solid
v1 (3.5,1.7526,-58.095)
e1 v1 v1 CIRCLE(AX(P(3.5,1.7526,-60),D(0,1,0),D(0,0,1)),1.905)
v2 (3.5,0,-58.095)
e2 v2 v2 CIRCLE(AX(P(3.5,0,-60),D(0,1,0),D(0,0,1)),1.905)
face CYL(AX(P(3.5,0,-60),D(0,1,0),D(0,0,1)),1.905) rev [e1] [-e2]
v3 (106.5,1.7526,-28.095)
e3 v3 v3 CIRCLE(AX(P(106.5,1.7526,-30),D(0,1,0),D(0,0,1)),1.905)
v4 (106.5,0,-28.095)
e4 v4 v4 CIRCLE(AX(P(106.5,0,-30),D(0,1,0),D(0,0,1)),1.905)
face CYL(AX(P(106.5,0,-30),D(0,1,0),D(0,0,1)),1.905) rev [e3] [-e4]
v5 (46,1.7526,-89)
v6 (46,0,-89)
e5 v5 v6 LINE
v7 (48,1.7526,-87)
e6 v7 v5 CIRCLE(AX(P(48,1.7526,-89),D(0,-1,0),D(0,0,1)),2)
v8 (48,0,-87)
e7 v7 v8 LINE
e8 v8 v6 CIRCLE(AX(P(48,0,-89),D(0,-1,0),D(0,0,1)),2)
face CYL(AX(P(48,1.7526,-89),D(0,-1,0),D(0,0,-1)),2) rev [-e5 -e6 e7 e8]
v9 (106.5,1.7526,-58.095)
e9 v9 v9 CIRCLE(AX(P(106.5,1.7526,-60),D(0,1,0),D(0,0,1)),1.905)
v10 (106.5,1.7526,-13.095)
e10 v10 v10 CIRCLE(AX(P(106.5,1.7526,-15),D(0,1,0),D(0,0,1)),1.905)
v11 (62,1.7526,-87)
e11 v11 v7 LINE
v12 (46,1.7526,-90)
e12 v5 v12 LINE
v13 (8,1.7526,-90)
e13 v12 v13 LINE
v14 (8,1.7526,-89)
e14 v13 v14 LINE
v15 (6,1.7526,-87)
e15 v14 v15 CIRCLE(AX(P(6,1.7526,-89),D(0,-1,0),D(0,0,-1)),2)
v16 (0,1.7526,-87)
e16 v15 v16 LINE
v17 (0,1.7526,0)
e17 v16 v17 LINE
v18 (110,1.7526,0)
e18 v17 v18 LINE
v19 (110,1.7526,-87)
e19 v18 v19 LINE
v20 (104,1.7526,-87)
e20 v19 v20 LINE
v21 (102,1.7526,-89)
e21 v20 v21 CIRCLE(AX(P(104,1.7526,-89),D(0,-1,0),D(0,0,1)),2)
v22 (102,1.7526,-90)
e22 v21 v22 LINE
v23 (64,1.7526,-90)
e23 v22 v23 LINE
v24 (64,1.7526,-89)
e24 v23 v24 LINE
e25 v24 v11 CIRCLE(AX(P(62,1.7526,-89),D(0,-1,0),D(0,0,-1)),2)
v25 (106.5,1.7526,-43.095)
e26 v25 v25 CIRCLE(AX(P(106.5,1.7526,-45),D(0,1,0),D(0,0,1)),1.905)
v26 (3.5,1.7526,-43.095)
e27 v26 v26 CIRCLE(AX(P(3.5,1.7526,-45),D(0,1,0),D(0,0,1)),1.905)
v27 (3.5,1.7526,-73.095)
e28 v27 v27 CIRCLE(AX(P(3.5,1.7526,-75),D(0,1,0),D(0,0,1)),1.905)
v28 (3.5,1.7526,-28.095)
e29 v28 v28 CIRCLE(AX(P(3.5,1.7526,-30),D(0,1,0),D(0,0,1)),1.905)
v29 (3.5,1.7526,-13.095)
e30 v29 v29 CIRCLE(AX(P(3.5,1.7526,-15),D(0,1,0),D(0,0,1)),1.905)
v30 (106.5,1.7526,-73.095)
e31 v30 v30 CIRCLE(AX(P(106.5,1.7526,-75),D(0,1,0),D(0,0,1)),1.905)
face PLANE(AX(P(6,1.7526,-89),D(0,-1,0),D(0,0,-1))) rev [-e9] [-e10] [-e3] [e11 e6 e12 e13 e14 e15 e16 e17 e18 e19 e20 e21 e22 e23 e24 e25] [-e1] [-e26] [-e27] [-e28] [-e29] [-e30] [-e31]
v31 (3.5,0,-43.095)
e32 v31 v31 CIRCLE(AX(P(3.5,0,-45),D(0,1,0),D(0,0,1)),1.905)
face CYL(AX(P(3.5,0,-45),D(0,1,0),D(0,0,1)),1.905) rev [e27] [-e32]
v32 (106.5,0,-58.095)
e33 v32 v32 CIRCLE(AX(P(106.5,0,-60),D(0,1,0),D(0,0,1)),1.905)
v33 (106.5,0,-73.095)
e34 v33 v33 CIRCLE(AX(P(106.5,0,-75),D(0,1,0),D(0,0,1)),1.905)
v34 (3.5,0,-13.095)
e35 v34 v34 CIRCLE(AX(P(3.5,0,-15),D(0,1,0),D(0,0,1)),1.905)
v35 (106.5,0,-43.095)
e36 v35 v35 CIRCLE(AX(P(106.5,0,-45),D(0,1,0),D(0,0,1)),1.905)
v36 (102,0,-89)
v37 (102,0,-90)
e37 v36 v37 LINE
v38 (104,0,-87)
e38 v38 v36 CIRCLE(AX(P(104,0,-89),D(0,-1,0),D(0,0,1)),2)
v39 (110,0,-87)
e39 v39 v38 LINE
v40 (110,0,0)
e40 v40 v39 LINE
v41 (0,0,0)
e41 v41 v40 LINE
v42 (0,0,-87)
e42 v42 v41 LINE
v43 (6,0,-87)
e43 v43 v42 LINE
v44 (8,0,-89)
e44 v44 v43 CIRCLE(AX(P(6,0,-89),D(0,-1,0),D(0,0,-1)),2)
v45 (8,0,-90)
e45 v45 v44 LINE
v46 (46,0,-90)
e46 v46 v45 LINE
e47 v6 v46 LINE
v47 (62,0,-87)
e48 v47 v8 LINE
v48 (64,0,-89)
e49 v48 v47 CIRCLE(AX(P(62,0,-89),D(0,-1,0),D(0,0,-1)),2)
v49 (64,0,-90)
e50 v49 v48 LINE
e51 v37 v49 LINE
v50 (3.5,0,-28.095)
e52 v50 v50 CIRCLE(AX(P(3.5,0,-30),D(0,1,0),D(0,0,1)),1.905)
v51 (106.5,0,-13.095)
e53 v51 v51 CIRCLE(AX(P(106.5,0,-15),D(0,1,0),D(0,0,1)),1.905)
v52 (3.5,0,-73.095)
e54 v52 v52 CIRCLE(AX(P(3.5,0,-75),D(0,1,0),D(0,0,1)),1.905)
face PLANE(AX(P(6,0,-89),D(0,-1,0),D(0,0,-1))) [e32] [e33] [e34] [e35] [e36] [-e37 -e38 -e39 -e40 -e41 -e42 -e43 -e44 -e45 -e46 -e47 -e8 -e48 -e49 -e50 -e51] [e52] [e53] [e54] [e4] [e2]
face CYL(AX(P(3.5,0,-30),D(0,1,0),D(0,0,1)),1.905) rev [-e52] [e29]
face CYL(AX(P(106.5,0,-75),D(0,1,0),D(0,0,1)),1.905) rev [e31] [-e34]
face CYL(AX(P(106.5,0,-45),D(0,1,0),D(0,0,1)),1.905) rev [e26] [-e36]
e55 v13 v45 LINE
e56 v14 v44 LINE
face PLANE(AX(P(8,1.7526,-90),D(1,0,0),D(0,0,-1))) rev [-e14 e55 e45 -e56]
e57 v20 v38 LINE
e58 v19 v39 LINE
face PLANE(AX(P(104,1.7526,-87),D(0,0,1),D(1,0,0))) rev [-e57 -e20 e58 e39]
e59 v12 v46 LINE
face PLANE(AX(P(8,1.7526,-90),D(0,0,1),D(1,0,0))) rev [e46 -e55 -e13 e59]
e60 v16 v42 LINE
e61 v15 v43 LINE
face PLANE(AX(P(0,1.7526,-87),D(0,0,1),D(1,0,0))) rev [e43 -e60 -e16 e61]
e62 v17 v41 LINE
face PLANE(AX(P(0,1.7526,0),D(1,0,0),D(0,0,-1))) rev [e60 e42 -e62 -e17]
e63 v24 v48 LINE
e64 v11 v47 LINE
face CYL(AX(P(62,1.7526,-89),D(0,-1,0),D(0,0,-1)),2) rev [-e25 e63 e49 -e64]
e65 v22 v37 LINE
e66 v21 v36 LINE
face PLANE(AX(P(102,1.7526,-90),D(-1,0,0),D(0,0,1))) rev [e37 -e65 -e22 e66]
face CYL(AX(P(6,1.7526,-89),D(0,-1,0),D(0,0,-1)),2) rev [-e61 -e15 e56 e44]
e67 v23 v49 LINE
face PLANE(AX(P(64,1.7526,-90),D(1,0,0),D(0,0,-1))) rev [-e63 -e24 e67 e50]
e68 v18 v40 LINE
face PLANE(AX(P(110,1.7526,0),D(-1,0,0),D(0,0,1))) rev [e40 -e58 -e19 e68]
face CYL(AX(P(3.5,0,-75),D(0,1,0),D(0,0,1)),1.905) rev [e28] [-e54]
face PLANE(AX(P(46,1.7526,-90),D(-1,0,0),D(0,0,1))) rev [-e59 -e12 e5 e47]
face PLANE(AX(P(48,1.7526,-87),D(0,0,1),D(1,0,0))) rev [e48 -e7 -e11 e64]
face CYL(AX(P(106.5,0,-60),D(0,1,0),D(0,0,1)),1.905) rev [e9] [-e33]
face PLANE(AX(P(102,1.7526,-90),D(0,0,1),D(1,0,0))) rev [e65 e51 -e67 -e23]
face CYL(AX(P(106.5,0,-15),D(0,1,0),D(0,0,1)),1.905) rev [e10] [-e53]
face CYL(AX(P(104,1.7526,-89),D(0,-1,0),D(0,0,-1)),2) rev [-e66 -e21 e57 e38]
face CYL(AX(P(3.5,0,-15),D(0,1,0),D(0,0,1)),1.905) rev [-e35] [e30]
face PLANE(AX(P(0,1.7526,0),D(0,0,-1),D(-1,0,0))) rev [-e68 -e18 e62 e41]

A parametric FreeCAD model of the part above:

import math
import FreeCAD as App
import Part
import Sketcher

doc = App.newDocument("Part")
body = doc.addObject("PartDesign::Body", "Body")

# Sketch on XZ plane
sketch1 = body.newObject("Sketcher::SketchObject", "Sketch")
sketch1.AttachmentSupport = (doc.getObject("XZ_Plane"), [""])
sketch1.MapMode = "FlatFace"
sketch1.addGeometry([
    Part.LineSegment(App.Vector(0, 0, 0), App.Vector(110, 0, 0)),  # 0
    Part.LineSegment(App.Vector(110, 0, 0), App.Vector(110, -87, 0)),  # 1
    Part.LineSegment(App.Vector(110, -87, 0), App.Vector(104, -87, 0)),  # 2
    Part.ArcOfCircle(Part.Circle(App.Vector(104, -89, 0), App.Vector(0, 0, 1), 2), math.radians(90), math.radians(180)),  # 3
    Part.LineSegment(App.Vector(102, -89, 0), App.Vector(102, -90, 0)),  # 4
    Part.LineSegment(App.Vector(102, -90, 0), App.Vector(64, -90, 0)),  # 5
    Part.LineSegment(App.Vector(64, -90, 0), App.Vector(64, -89, 0)),  # 6
    Part.ArcOfCircle(Part.Circle(App.Vector(62, -89, 0), App.Vector(0, 0, 1), 2), math.radians(0), math.radians(90)),  # 7
    Part.LineSegment(App.Vector(62, -87, 0), App.Vector(48, -87, 0)),  # 8
    Part.ArcOfCircle(Part.Circle(App.Vector(48, -89, 0), App.Vector(0, 0, 1), 2), math.radians(90), math.radians(180)),  # 9
    Part.LineSegment(App.Vector(46, -89, 0), App.Vector(46, -90, 0)),  # 10
    Part.LineSegment(App.Vector(46, -90, 0), App.Vector(8, -90, 0)),  # 11
    Part.LineSegment(App.Vector(8, -90, 0), App.Vector(8, -89, 0)),  # 12
    Part.ArcOfCircle(Part.Circle(App.Vector(6, -89, 0), App.Vector(0, 0, 1), 2), math.radians(0), math.radians(90)),  # 13
    Part.LineSegment(App.Vector(6, -87, 0), App.Vector(0, -87, 0)),  # 14
    Part.LineSegment(App.Vector(0, -87, 0), App.Vector(0, 0, 0)),  # 15
], False)
sketch1.addConstraint([
    Sketcher.Constraint("Coincident", 0, 2, 1, 1),
    Sketcher.Constraint("Coincident", 1, 2, 2, 1),
    Sketcher.Constraint("Tangent", 2, 2, 3, 1),
    Sketcher.Constraint("Tangent", 3, 2, 4, 1),
    Sketcher.Constraint("Coincident", 4, 2, 5, 1),
    Sketcher.Constraint("Coincident", 5, 2, 6, 1),
    Sketcher.Constraint("Tangent", 6, 2, 7, 1),
    Sketcher.Constraint("Tangent", 7, 2, 8, 1),
    Sketcher.Constraint("Tangent", 8, 2, 9, 1),
    Sketcher.Constraint("Tangent", 9, 2, 10, 1),
    Sketcher.Constraint("Coincident", 10, 2, 11, 1),
    Sketcher.Constraint("Coincident", 11, 2, 12, 1),
    Sketcher.Constraint("Tangent", 12, 2, 13, 1),
    Sketcher.Constraint("Tangent", 13, 2, 14, 1),
    Sketcher.Constraint("Coincident", 14, 2, 15, 1),
    Sketcher.Constraint("Coincident", 15, 2, 0, 1),
    Sketcher.Constraint("Horizontal", 0),
    Sketcher.Constraint("Vertical", 1),
    Sketcher.Constraint("Horizontal", 2),
    Sketcher.Constraint("Vertical", 4),
    Sketcher.Constraint("Horizontal", 5),
    Sketcher.Constraint("Vertical", 6),
    Sketcher.Constraint("Horizontal", 8),
    Sketcher.Constraint("Vertical", 10),
    Sketcher.Constraint("Horizontal", 11),
    Sketcher.Constraint("Vertical", 12),
    Sketcher.Constraint("Horizontal", 14),
    Sketcher.Constraint("Vertical", 15),
    Sketcher.Constraint("Coincident", 15, 2, -1, 1),
    Sketcher.Constraint("Equal", 3, 7),
    Sketcher.Constraint("Equal", 7, 9),
    Sketcher.Constraint("Equal", 9, 13),
    Sketcher.Constraint("Horizontal", 3, 3, 7, 3),
    Sketcher.Constraint("Horizontal", 9, 3, 13, 3),
    Sketcher.Constraint("Horizontal", 5, 2, 10, 2),
    Sketcher.Constraint("Equal", 5, 11),
    Sketcher.Constraint("Equal", 2, 14),
    Sketcher.Constraint("Radius", 3, 2.0),
    Sketcher.Constraint("DistanceX", 0, 1, 0, 2, 110.0),
    Sketcher.Constraint("DistanceX", 2, 2, 2, 1, 6.0),
    Sketcher.Constraint("DistanceX", 5, 2, 5, 1, 38.0),
    Sketcher.Constraint("DistanceY", 1, 2, 1, 1, 87.0),
    Sketcher.Constraint("DistanceY", 4, 2, 4, 1, 1.0),
])
pad1 = body.newObject("PartDesign::Pad", "Pad")
pad1.Profile = sketch1
pad1.Length = 1.7526
pad1.Reversed = True

# Sketch on XZ plane
sketch2 = body.newObject("Sketcher::SketchObject", "Sketch001")
sketch2.AttachmentSupport = (doc.getObject("XZ_Plane"), [""])
sketch2.MapMode = "FlatFace"
sketch2.AttachmentOffset = App.Placement(App.Vector(0, 0, -1.7526), App.Rotation())
sketch2.addGeometry([
    Part.Circle(App.Vector(3.5, -15, 0), App.Vector(0, 0, 1), 1.9),  # 0
    Part.Circle(App.Vector(106.5, -15, 0), App.Vector(0, 0, 1), 1.9),  # 1
    Part.Circle(App.Vector(106.5, -30, 0), App.Vector(0, 0, 1), 1.9),  # 2
    Part.Circle(App.Vector(106.5, -45, 0), App.Vector(0, 0, 1), 1.9),  # 3
    Part.Circle(App.Vector(106.5, -60, 0), App.Vector(0, 0, 1), 1.9),  # 4
    Part.Circle(App.Vector(106.5, -75, 0), App.Vector(0, 0, 1), 1.9),  # 5
    Part.Circle(App.Vector(3.5, -30, 0), App.Vector(0, 0, 1), 1.9),  # 6
    Part.Circle(App.Vector(3.5, -45, 0), App.Vector(0, 0, 1), 1.9),  # 7
    Part.Circle(App.Vector(3.5, -60, 0), App.Vector(0, 0, 1), 1.9),  # 8
    Part.Circle(App.Vector(3.5, -75, 0), App.Vector(0, 0, 1), 1.9),  # 9
], False)
sketch2.addConstraint([
    Sketcher.Constraint("Equal", 0, 1),
    Sketcher.Constraint("Equal", 1, 2),
    Sketcher.Constraint("Equal", 2, 3),
    Sketcher.Constraint("Equal", 3, 4),
    Sketcher.Constraint("Equal", 4, 5),
    Sketcher.Constraint("Equal", 5, 6),
    Sketcher.Constraint("Equal", 6, 7),
    Sketcher.Constraint("Equal", 7, 8),
    Sketcher.Constraint("Equal", 8, 9),
    Sketcher.Constraint("Horizontal", 0, 3, 1, 3),
    Sketcher.Constraint("Horizontal", 2, 3, 6, 3),
    Sketcher.Constraint("Horizontal", 3, 3, 7, 3),
    Sketcher.Constraint("Horizontal", 4, 3, 8, 3),
    Sketcher.Constraint("Horizontal", 5, 3, 9, 3),
    Sketcher.Constraint("Vertical", 1, 3, 2, 3),
    Sketcher.Constraint("Vertical", 2, 3, 3, 3),
    Sketcher.Constraint("Vertical", 3, 3, 4, 3),
    Sketcher.Constraint("Vertical", 4, 3, 5, 3),
    Sketcher.Constraint("Vertical", 0, 3, 6, 3),
    Sketcher.Constraint("Vertical", 6, 3, 7, 3),
    Sketcher.Constraint("Vertical", 7, 3, 8, 3),
    Sketcher.Constraint("Vertical", 8, 3, 9, 3),
    Sketcher.Constraint("Diameter", 0, 3.81),
    Sketcher.Constraint("DistanceY", 0, 3, -1, 1, 15.0),
    Sketcher.Constraint("DistanceY", 2, 3, -1, 1, 30.0),
    Sketcher.Constraint("DistanceY", 3, 3, -1, 1, 45.0),
    Sketcher.Constraint("DistanceY", 4, 3, -1, 1, 60.0),
    Sketcher.Constraint("DistanceY", 5, 3, -1, 1, 75.0),
    Sketcher.Constraint("DistanceX", 0, 3, 1, 3, 103.0),
    Sketcher.Constraint("DistanceX", -1, 1, 0, 3, 3.5),
])
pocket1 = body.newObject("PartDesign::Pocket", "Pocket")
pocket1.Profile = sketch2
pocket1.Type = "ThroughAll"
pocket1.Reversed = True

doc.recompute()
